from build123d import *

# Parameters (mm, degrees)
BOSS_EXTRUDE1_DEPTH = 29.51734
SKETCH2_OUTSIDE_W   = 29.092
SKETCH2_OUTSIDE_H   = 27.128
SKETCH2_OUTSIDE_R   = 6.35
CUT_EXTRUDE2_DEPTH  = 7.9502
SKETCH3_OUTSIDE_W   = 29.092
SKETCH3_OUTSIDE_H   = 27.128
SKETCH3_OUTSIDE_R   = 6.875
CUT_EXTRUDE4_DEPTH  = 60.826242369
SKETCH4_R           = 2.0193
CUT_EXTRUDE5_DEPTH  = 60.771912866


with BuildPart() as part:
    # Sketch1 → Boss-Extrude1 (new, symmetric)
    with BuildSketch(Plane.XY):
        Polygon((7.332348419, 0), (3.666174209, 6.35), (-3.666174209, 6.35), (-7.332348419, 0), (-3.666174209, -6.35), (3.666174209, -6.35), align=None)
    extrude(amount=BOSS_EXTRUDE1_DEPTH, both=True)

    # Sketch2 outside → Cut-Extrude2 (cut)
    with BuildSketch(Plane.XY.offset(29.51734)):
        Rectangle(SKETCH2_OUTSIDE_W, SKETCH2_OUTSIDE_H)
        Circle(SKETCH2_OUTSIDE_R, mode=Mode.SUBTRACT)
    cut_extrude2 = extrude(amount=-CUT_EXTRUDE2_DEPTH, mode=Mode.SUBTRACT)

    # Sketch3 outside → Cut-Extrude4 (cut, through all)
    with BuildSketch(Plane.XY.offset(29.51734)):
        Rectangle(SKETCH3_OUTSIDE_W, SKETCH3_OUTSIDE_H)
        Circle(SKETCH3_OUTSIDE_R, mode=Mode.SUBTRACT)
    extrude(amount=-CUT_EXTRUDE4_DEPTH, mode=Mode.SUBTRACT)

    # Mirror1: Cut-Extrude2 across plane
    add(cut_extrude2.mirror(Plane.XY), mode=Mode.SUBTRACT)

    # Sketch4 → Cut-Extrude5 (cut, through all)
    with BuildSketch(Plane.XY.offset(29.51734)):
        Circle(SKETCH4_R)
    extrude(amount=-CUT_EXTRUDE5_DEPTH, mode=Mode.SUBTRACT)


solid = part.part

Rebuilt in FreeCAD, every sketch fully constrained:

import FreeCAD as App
import Part
import Sketcher
from FreeCAD import Vector
Q = App.Units.Quantity


def add_polygon(sketch, points):
    """Adds a closed chain of lines whose ends are joined by coincident constraints."""
    first, n = sketch.GeometryCount, len(points)
    for a, b in zip(points, points[1:] + points[:1]):
        sketch.addGeometry(Part.LineSegment(App.Vector(*a, 0), App.Vector(*b, 0)), False)
    for i in range(n):
        sketch.addConstraint(Sketcher.Constraint("Coincident", first + i, 2, first + (i + 1) % n, 1))

doc = App.newDocument("Part")
body = doc.addObject("PartDesign::Body", "Body")

sketch1 = body.newObject("Sketcher::SketchObject", "Sketch")
sketch1.AttachmentSupport = (doc.getObject("XY_Plane"), [""])
sketch1.MapMode = "FlatFace"
add_polygon(sketch1, [(7, 0), (4, 6), (-4, 6), (-7, 0), (-4, -6), (4, -6)])
sketch1.addConstraint(Sketcher.Constraint("Horizontal", 1))
sketch1.addConstraint(Sketcher.Constraint("Horizontal", 4))
sketch1.addConstraint(Sketcher.Constraint("Symmetric", 0, 2, 3, 2, -1, 1))
sketch1.addConstraint(Sketcher.Constraint("Symmetric", 2, 2, 5, 2, -1, 1))
sketch1.addConstraint(Sketcher.Constraint("PointOnObject", 2, 2, -1))
sketch1.addConstraint(Sketcher.Constraint("Parallel", 2, 5))
sketch1.addConstraint(Sketcher.Constraint("Vertical", 1, 2, 3, 2))
sketch1.addConstraint(Sketcher.Constraint("Angle", 0, Q("120 deg")))
sketch1.addConstraint(Sketcher.Constraint("DistanceY", 3, 2, 1, 2, Q("0.5 in")))
sketch1.addConstraint(Sketcher.Constraint("DistanceX", 1, 2, 1, 1, 7.332348))
pad1 = body.newObject("PartDesign::Pad", "Pad")
pad1.Profile = sketch1
pad1.Length = Q("2.3242 in")
pad1.Midplane = True

sketch2 = body.newObject("Sketcher::SketchObject", "Sketch001")
sketch2.AttachmentSupport = (doc.getObject("XY_Plane"), [""])
sketch2.MapMode = "FlatFace"
sketch2.AttachmentOffset = App.Placement(Vector(0, 0, 1.1621 * 25.4), App.Rotation())
add_polygon(sketch2, [(-15, 14), (-15, -14), (15, -14), (15, 14)])
sketch2.addGeometry(Part.Circle(Vector(0, 0, 0), Vector(0, 0, 1), 6), False)
sketch2.addConstraint(Sketcher.Constraint("Vertical", 0))
sketch2.addConstraint(Sketcher.Constraint("Horizontal", 1))
sketch2.addConstraint(Sketcher.Constraint("Vertical", 2))
sketch2.addConstraint(Sketcher.Constraint("Horizontal", 3))
sketch2.addConstraint(Sketcher.Constraint("Coincident", 4, 3, -1, 1))
sketch2.addConstraint(Sketcher.Constraint("Symmetric", 0, 2, 2, 2, -1, 1))
sketch2.addConstraint(Sketcher.Constraint("Diameter", 4, Q("0.5 in")))
sketch2.addConstraint(Sketcher.Constraint("DistanceX", 1, 1, 1, 2, 29.092))
sketch2.addConstraint(Sketcher.Constraint("DistanceY", 0, 2, 0, 1, 27.128))
pocket1 = body.newObject("PartDesign::Pocket", "Pocket")
pocket1.Profile = sketch2
pocket1.Length = Q("0.313 in")

sketch3 = body.newObject("Sketcher::SketchObject", "Sketch002")
sketch3.AttachmentSupport = (doc.getObject("XY_Plane"), [""])
sketch3.MapMode = "FlatFace"
sketch3.AttachmentOffset = App.Placement(Vector(0, 0, 1.1621 * 25.4), App.Rotation())
add_polygon(sketch3, [(-15, 14), (-15, -14), (15, -14), (15, 14)])
sketch3.addGeometry(Part.Circle(Vector(0, 0, 0), Vector(0, 0, 1), 7), False)
sketch3.addConstraint(Sketcher.Constraint("Vertical", 0))
sketch3.addConstraint(Sketcher.Constraint("Horizontal", 1))
sketch3.addConstraint(Sketcher.Constraint("Vertical", 2))
sketch3.addConstraint(Sketcher.Constraint("Horizontal", 3))
sketch3.addConstraint(Sketcher.Constraint("Coincident", 4, 3, -1, 1))
sketch3.addConstraint(Sketcher.Constraint("Symmetric", 0, 2, 2, 2, -1, 1))
sketch3.addConstraint(Sketcher.Constraint("Diameter", 4, 13.75))
sketch3.addConstraint(Sketcher.Constraint("DistanceX", 1, 1, 1, 2, 29.092))
sketch3.addConstraint(Sketcher.Constraint("DistanceY", 0, 2, 0, 1, 27.128))
pocket2 = body.newObject("PartDesign::Pocket", "Pocket001")
pocket2.Profile = sketch3
pocket2.Type = "ThroughAll"
doc.recompute()

mirrored = body.newObject("PartDesign::Mirrored", "Mirrored")
mirrored.Originals = [pocket1]
mirrored.MirrorPlane = (doc.getObject("XY_Plane"), [""])
body.Tip = mirrored

sketch4 = body.newObject("Sketcher::SketchObject", "Sketch003")
sketch4.AttachmentSupport = (doc.getObject("XY_Plane"), [""])
sketch4.MapMode = "FlatFace"
sketch4.AttachmentOffset = App.Placement(Vector(0, 0, 1.1621 * 25.4), App.Rotation())
sketch4.addGeometry(Part.Circle(Vector(0, 0, 0), Vector(0, 0, 1), 2), False)
sketch4.addConstraint(Sketcher.Constraint("Coincident", 0, 3, -1, 1))
sketch4.addConstraint(Sketcher.Constraint("Diameter", 0, Q("0.159 in")))
pocket3 = body.newObject("PartDesign::Pocket", "Pocket002")
pocket3.Profile = sketch4
pocket3.Type = "ThroughAll"

doc.recompute()
